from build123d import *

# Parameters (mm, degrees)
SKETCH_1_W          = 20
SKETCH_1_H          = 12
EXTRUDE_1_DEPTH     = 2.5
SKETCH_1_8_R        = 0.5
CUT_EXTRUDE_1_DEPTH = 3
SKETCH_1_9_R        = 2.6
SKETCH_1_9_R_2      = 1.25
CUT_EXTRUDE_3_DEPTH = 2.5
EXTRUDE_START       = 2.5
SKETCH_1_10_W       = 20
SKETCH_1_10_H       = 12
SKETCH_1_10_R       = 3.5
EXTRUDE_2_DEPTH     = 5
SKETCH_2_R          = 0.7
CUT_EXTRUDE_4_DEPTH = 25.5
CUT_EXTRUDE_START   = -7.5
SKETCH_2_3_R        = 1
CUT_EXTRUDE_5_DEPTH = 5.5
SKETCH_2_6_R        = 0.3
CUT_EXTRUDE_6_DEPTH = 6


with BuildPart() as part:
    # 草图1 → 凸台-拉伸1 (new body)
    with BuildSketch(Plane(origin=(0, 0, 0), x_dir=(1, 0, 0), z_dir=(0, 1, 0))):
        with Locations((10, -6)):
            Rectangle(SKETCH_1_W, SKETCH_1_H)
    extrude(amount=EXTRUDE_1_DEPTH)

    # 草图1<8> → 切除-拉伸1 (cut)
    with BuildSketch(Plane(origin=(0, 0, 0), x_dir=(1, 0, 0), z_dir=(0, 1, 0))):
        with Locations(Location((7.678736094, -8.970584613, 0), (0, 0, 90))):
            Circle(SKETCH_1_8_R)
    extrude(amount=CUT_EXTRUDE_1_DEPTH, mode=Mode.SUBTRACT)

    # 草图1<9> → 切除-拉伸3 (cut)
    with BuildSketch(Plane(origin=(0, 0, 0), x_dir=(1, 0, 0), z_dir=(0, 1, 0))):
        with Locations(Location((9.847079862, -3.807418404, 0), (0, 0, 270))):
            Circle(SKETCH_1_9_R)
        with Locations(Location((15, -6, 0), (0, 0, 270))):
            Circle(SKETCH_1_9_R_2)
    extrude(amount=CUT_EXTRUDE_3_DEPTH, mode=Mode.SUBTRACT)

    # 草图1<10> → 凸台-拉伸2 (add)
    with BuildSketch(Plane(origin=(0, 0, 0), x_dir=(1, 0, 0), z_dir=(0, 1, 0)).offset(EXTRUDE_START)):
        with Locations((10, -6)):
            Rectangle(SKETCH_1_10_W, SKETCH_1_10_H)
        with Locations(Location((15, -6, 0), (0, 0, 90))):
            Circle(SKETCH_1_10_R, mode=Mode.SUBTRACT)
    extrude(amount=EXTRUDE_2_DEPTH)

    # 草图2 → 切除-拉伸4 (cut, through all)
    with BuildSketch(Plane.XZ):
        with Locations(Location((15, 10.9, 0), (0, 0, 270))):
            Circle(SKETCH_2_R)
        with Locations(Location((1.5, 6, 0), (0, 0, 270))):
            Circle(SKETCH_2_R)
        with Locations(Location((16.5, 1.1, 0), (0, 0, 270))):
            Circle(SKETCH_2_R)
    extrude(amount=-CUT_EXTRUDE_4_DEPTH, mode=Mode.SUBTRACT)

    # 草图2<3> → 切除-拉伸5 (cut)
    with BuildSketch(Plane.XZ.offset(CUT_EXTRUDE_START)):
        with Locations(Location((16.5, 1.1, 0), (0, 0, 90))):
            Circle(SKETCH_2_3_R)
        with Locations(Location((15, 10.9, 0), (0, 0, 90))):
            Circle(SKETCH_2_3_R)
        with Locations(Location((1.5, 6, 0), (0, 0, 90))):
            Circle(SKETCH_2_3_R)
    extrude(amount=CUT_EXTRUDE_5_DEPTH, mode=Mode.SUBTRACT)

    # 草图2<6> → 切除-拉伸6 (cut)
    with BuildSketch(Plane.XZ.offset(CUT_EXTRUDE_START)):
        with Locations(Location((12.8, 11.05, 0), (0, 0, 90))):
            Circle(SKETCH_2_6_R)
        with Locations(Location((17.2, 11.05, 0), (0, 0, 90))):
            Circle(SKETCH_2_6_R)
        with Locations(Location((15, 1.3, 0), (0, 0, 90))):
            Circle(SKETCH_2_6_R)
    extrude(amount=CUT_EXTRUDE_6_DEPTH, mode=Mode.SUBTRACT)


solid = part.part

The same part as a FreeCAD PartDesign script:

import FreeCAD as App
import Part
import Sketcher
from FreeCAD import Vector
Q = App.Units.Quantity


def add_polygon(sketch, points):
    """Adds a closed chain of lines whose ends are joined by coincident constraints."""
    first, n = sketch.GeometryCount, len(points)
    for a, b in zip(points, points[1:] + points[:1]):
        sketch.addGeometry(Part.LineSegment(App.Vector(*a, 0), App.Vector(*b, 0)), False)
    for i in range(n):
        sketch.addConstraint(Sketcher.Constraint("Coincident", first + i, 2, first + (i + 1) % n, 1))

doc = App.newDocument("Part")
params = doc.addObject("Spreadsheet::Sheet", "Params")
for row, (alias, value) in enumerate([
    ("sketch1_width", "20 mm"),
    ("sketch1_height", "12 mm"),
    ("pad1_length", "2.5 mm"),
    ("sketch2_diameter", "1 mm"),
    ("pocket1_length", "3 mm"),
    ("sketch3_diameter", "5.2 mm"),
    ("sketch3_diameter2", "2.5 mm"),
    ("pocket2_length", "2.5 mm"),
    ("sketch4_diameter", "7 mm"),
    ("sketch4_width", "20 mm"),
    ("sketch4_height", "12 mm"),
    ("pad2_length", "5 mm"),
    ("sketch5_diameter", "1.4 mm"),
    ("sketch6_diameter", "2 mm"),
    ("pocket4_length", "5.5 mm"),
    ("sketch7_diameter", "0.6 mm"),
    ("pocket5_length", "6 mm"),
], start=1):
    params.set(f"A{row}", alias)
    params.set(f"B{row}", "=" + value)
    params.setAlias(f"B{row}", alias)

body = doc.addObject("PartDesign::Body", "Body")

# Sketch on XZ plane
sketch1 = doc.addObject("Sketcher::SketchObject", "Sketch")
body.addObject(sketch1)
sketch1.AttachmentSupport = (doc.XZ_Plane, [""])
sketch1.MapMode = "FlatFace"
add_polygon(sketch1, [(0, 0), (0, 12), (20, 12), (20, 0)])  # lines 0-3
sketch1.addConstraint([
    Sketcher.Constraint("Vertical", 0),
    Sketcher.Constraint("Horizontal", 1),
    Sketcher.Constraint("Vertical", 2),
    Sketcher.Constraint("Horizontal", 3),
    Sketcher.Constraint("Coincident", 3, 2, -1, 1),
    Sketcher.Constraint("DistanceX", 1, 1, 1, 2, Q("20 mm")),
    Sketcher.Constraint("DistanceY", 0, 1, 0, 2, Q("12 mm")),
])
sketch1.setExpression("Constraints[9]", "Params.sketch1_width")
sketch1.setExpression("Constraints[10]", "Params.sketch1_height")
pad1 = doc.addObject("PartDesign::Pad", "Pad")
body.addObject(pad1)
pad1.Profile = sketch1
pad1.setExpression("Length", "Params.pad1_length")
pad1.Reversed = True

# Sketch on XZ plane
sketch2 = doc.addObject("Sketcher::SketchObject", "Sketch001")
body.addObject(sketch2)
sketch2.AttachmentSupport = (doc.XZ_Plane, [""])
sketch2.MapMode = "FlatFace"
sketch2.addGeometry(Part.Circle(Vector(7.678736, 8.970585, 0), Vector(0, 0, 1), 0.5), False)
sketch2.addConstraint([
    Sketcher.Constraint("Diameter", 0, Q("1 mm")),
    Sketcher.Constraint("DistanceX", -1, 1, 0, 3, Q("7.678736 mm")),
    Sketcher.Constraint("DistanceY", -1, 1, 0, 3, Q("8.970585 mm")),
])
sketch2.setExpression("Constraints[0]", "Params.sketch2_diameter")
pocket1 = doc.addObject("PartDesign::Pocket", "Pocket")
body.addObject(pocket1)
pocket1.Profile = sketch2
pocket1.setExpression("Length", "Params.pocket1_length")

# Sketch on XZ plane
sketch3 = doc.addObject("Sketcher::SketchObject", "Sketch002")
body.addObject(sketch3)
sketch3.AttachmentSupport = (doc.XZ_Plane, [""])
sketch3.MapMode = "FlatFace"
sketch3.addGeometry([
    Part.Circle(Vector(9.84708, 3.807418, 0), Vector(0, 0, 1), 2.6),
    Part.Circle(Vector(15, 6, 0), Vector(0, 0, 1), 1.25),
], False)
sketch3.addConstraint([
    Sketcher.Constraint("Diameter", 0, Q("5.2 mm")),
    Sketcher.Constraint("Diameter", 1, Q("2.5 mm")),
    Sketcher.Constraint("DistanceX", -1, 1, 1, 3, Q("15 mm")),
    Sketcher.Constraint("DistanceY", -1, 1, 1, 3, Q("6 mm")),
    Sketcher.Constraint("DistanceX", -1, 1, 0, 3, Q("9.84708 mm")),
    Sketcher.Constraint("DistanceY", -1, 1, 0, 3, Q("3.807418 mm")),
])
sketch3.setExpression("Constraints[0]", "Params.sketch3_diameter")
sketch3.setExpression("Constraints[1]", "Params.sketch3_diameter2")
pocket2 = doc.addObject("PartDesign::Pocket", "Pocket001")
body.addObject(pocket2)
pocket2.Profile = sketch3
pocket2.setExpression("Length", "Params.pocket2_length")

# Sketch on XZ plane
sketch4 = doc.addObject("Sketcher::SketchObject", "Sketch003")
body.addObject(sketch4)
sketch4.AttachmentSupport = (doc.XZ_Plane, [""])
sketch4.MapMode = "FlatFace"
sketch4.AttachmentOffset = App.Placement(Vector(0, 0, -2.5), App.Rotation())
add_polygon(sketch4, [(0, 0), (0, 12), (20, 12), (20, 0)])  # lines 0-3
sketch4.addGeometry(Part.Circle(Vector(15, 6, 0), Vector(0, 0, 1), 3.5), False)  # 4
sketch4.addConstraint([
    Sketcher.Constraint("Vertical", 0),
    Sketcher.Constraint("Horizontal", 1),
    Sketcher.Constraint("Vertical", 2),
    Sketcher.Constraint("Horizontal", 3),
    Sketcher.Constraint("Coincident", 3, 2, -1, 1),
    Sketcher.Constraint("Diameter", 4, Q("7 mm")),
    Sketcher.Constraint("DistanceX", 1, 1, 1, 2, Q("20 mm")),
    Sketcher.Constraint("DistanceY", 0, 1, 0, 2, Q("12 mm")),
    Sketcher.Constraint("DistanceX", -1, 1, 4, 3, Q("15 mm")),
    Sketcher.Constraint("DistanceY", -1, 1, 4, 3, Q("6 mm")),
])
sketch4.setExpression("Constraints[9]", "Params.sketch4_diameter")
sketch4.setExpression("Constraints[10]", "Params.sketch4_width")
sketch4.setExpression("Constraints[11]", "Params.sketch4_height")
pad2 = doc.addObject("PartDesign::Pad", "Pad001")
body.addObject(pad2)
pad2.Profile = sketch4
pad2.setExpression("Length", "Params.pad2_length")
pad2.Reversed = True

# Sketch on XZ plane
sketch5 = doc.addObject("Sketcher::SketchObject", "Sketch004")
body.addObject(sketch5)
sketch5.AttachmentSupport = (doc.XZ_Plane, [""])
sketch5.MapMode = "FlatFace"
sketch5.addGeometry([
    Part.Circle(Vector(15, 10.9, 0), Vector(0, 0, 1), 0.7),
    Part.Circle(Vector(1.5, 6, 0), Vector(0, 0, 1), 0.7),
    Part.Circle(Vector(16.5, 1.1, 0), Vector(0, 0, 1), 0.7),
], False)
sketch5.addConstraint([
    Sketcher.Constraint("Equal", 0, 1),
    Sketcher.Constraint("Equal", 1, 2),
    Sketcher.Constraint("Diameter", 0, Q("1.4 mm")),
    Sketcher.Constraint("DistanceX", -1, 1, 0, 3, Q("15 mm")),
    Sketcher.Constraint("DistanceY", -1, 1, 1, 3, Q("6 mm")),
    Sketcher.Constraint("DistanceX", 1, 3, 2, 3, Q("15 mm")),
    Sketcher.Constraint("DistanceY", -1, 1, 0, 3, Q("10.9 mm")),
    Sketcher.Constraint("DistanceX", -1, 1, 1, 3, Q("1.5 mm")),
    Sketcher.Constraint("DistanceY", -1, 1, 2, 3, Q("1.1 mm")),
])
sketch5.setExpression("Constraints[2]", "Params.sketch5_diameter")
pocket3 = doc.addObject("PartDesign::Pocket", "Pocket002")
body.addObject(pocket3)
pocket3.Profile = sketch5
pocket3.Type = "ThroughAll"

# Sketch on XZ plane
sketch6 = doc.addObject("Sketcher::SketchObject", "Sketch005")
body.addObject(sketch6)
sketch6.AttachmentSupport = (doc.XZ_Plane, [""])
sketch6.MapMode = "FlatFace"
sketch6.AttachmentOffset = App.Placement(Vector(0, 0, -7.5), App.Rotation())
sketch6.addGeometry([
    Part.Circle(Vector(16.5, 1.1, 0), Vector(0, 0, 1), 1),
    Part.Circle(Vector(15, 10.9, 0), Vector(0, 0, 1), 1),
    Part.Circle(Vector(1.5, 6, 0), Vector(0, 0, 1), 1),
], False)
sketch6.addConstraint([
    Sketcher.Constraint("Equal", 0, 1),
    Sketcher.Constraint("Equal", 1, 2),
    Sketcher.Constraint("Diameter", 0, Q("2 mm")),
    Sketcher.Constraint("DistanceX", -1, 1, 1, 3, Q("15 mm")),
    Sketcher.Constraint("DistanceY", -1, 1, 2, 3, Q("6 mm")),
    Sketcher.Constraint("DistanceX", 2, 3, 0, 3, Q("15 mm")),
    Sketcher.Constraint("DistanceX", -1, 1, 0, 3, Q("16.5 mm")),
    Sketcher.Constraint("DistanceY", -1, 1, 0, 3, Q("1.1 mm")),
    Sketcher.Constraint("DistanceY", -1, 1, 1, 3, Q("10.9 mm")),
])
sketch6.setExpression("Constraints[2]", "Params.sketch6_diameter")
pocket4 = doc.addObject("PartDesign::Pocket", "Pocket003")
body.addObject(pocket4)
pocket4.Profile = sketch6
pocket4.setExpression("Length", "Params.pocket4_length")
pocket4.Reversed = True

# Sketch on XZ plane
sketch7 = doc.addObject("Sketcher::SketchObject", "Sketch006")
body.addObject(sketch7)
sketch7.AttachmentSupport = (doc.XZ_Plane, [""])
sketch7.MapMode = "FlatFace"
sketch7.AttachmentOffset = App.Placement(Vector(0, 0, -7.5), App.Rotation())
sketch7.addGeometry([
    Part.Circle(Vector(12.8, 11.05, 0), Vector(0, 0, 1), 0.3),
    Part.Circle(Vector(17.2, 11.05, 0), Vector(0, 0, 1), 0.3),
    Part.Circle(Vector(15, 1.3, 0), Vector(0, 0, 1), 0.3),
], False)
sketch7.addConstraint([
    Sketcher.Constraint("Equal", 0, 1),
    Sketcher.Constraint("Equal", 1, 2),
    Sketcher.Constraint("Horizontal", 0, 3, 1, 3),
    Sketcher.Constraint("Diameter", 0, Q("0.6 mm")),
    Sketcher.Constraint("DistanceX", -1, 1, 2, 3, Q("15 mm")),
    Sketcher.Constraint("DistanceX", -1, 1, 0, 3, Q("12.8 mm")),
    Sketcher.Constraint("DistanceX", -1, 1, 1, 3, Q("17.2 mm")),
    Sketcher.Constraint("DistanceY", -1, 1, 2, 3, Q("1.3 mm")),
    Sketcher.Constraint("DistanceY", -1, 1, 0, 3, Q("11.05 mm")),
])
sketch7.setExpression("Constraints[3]", "Params.sketch7_diameter")
pocket5 = doc.addObject("PartDesign::Pocket", "Pocket004")
body.addObject(pocket5)
pocket5.Profile = sketch7
pocket5.setExpression("Length", "Params.pocket5_length")
pocket5.Reversed = True

doc.recompute()
